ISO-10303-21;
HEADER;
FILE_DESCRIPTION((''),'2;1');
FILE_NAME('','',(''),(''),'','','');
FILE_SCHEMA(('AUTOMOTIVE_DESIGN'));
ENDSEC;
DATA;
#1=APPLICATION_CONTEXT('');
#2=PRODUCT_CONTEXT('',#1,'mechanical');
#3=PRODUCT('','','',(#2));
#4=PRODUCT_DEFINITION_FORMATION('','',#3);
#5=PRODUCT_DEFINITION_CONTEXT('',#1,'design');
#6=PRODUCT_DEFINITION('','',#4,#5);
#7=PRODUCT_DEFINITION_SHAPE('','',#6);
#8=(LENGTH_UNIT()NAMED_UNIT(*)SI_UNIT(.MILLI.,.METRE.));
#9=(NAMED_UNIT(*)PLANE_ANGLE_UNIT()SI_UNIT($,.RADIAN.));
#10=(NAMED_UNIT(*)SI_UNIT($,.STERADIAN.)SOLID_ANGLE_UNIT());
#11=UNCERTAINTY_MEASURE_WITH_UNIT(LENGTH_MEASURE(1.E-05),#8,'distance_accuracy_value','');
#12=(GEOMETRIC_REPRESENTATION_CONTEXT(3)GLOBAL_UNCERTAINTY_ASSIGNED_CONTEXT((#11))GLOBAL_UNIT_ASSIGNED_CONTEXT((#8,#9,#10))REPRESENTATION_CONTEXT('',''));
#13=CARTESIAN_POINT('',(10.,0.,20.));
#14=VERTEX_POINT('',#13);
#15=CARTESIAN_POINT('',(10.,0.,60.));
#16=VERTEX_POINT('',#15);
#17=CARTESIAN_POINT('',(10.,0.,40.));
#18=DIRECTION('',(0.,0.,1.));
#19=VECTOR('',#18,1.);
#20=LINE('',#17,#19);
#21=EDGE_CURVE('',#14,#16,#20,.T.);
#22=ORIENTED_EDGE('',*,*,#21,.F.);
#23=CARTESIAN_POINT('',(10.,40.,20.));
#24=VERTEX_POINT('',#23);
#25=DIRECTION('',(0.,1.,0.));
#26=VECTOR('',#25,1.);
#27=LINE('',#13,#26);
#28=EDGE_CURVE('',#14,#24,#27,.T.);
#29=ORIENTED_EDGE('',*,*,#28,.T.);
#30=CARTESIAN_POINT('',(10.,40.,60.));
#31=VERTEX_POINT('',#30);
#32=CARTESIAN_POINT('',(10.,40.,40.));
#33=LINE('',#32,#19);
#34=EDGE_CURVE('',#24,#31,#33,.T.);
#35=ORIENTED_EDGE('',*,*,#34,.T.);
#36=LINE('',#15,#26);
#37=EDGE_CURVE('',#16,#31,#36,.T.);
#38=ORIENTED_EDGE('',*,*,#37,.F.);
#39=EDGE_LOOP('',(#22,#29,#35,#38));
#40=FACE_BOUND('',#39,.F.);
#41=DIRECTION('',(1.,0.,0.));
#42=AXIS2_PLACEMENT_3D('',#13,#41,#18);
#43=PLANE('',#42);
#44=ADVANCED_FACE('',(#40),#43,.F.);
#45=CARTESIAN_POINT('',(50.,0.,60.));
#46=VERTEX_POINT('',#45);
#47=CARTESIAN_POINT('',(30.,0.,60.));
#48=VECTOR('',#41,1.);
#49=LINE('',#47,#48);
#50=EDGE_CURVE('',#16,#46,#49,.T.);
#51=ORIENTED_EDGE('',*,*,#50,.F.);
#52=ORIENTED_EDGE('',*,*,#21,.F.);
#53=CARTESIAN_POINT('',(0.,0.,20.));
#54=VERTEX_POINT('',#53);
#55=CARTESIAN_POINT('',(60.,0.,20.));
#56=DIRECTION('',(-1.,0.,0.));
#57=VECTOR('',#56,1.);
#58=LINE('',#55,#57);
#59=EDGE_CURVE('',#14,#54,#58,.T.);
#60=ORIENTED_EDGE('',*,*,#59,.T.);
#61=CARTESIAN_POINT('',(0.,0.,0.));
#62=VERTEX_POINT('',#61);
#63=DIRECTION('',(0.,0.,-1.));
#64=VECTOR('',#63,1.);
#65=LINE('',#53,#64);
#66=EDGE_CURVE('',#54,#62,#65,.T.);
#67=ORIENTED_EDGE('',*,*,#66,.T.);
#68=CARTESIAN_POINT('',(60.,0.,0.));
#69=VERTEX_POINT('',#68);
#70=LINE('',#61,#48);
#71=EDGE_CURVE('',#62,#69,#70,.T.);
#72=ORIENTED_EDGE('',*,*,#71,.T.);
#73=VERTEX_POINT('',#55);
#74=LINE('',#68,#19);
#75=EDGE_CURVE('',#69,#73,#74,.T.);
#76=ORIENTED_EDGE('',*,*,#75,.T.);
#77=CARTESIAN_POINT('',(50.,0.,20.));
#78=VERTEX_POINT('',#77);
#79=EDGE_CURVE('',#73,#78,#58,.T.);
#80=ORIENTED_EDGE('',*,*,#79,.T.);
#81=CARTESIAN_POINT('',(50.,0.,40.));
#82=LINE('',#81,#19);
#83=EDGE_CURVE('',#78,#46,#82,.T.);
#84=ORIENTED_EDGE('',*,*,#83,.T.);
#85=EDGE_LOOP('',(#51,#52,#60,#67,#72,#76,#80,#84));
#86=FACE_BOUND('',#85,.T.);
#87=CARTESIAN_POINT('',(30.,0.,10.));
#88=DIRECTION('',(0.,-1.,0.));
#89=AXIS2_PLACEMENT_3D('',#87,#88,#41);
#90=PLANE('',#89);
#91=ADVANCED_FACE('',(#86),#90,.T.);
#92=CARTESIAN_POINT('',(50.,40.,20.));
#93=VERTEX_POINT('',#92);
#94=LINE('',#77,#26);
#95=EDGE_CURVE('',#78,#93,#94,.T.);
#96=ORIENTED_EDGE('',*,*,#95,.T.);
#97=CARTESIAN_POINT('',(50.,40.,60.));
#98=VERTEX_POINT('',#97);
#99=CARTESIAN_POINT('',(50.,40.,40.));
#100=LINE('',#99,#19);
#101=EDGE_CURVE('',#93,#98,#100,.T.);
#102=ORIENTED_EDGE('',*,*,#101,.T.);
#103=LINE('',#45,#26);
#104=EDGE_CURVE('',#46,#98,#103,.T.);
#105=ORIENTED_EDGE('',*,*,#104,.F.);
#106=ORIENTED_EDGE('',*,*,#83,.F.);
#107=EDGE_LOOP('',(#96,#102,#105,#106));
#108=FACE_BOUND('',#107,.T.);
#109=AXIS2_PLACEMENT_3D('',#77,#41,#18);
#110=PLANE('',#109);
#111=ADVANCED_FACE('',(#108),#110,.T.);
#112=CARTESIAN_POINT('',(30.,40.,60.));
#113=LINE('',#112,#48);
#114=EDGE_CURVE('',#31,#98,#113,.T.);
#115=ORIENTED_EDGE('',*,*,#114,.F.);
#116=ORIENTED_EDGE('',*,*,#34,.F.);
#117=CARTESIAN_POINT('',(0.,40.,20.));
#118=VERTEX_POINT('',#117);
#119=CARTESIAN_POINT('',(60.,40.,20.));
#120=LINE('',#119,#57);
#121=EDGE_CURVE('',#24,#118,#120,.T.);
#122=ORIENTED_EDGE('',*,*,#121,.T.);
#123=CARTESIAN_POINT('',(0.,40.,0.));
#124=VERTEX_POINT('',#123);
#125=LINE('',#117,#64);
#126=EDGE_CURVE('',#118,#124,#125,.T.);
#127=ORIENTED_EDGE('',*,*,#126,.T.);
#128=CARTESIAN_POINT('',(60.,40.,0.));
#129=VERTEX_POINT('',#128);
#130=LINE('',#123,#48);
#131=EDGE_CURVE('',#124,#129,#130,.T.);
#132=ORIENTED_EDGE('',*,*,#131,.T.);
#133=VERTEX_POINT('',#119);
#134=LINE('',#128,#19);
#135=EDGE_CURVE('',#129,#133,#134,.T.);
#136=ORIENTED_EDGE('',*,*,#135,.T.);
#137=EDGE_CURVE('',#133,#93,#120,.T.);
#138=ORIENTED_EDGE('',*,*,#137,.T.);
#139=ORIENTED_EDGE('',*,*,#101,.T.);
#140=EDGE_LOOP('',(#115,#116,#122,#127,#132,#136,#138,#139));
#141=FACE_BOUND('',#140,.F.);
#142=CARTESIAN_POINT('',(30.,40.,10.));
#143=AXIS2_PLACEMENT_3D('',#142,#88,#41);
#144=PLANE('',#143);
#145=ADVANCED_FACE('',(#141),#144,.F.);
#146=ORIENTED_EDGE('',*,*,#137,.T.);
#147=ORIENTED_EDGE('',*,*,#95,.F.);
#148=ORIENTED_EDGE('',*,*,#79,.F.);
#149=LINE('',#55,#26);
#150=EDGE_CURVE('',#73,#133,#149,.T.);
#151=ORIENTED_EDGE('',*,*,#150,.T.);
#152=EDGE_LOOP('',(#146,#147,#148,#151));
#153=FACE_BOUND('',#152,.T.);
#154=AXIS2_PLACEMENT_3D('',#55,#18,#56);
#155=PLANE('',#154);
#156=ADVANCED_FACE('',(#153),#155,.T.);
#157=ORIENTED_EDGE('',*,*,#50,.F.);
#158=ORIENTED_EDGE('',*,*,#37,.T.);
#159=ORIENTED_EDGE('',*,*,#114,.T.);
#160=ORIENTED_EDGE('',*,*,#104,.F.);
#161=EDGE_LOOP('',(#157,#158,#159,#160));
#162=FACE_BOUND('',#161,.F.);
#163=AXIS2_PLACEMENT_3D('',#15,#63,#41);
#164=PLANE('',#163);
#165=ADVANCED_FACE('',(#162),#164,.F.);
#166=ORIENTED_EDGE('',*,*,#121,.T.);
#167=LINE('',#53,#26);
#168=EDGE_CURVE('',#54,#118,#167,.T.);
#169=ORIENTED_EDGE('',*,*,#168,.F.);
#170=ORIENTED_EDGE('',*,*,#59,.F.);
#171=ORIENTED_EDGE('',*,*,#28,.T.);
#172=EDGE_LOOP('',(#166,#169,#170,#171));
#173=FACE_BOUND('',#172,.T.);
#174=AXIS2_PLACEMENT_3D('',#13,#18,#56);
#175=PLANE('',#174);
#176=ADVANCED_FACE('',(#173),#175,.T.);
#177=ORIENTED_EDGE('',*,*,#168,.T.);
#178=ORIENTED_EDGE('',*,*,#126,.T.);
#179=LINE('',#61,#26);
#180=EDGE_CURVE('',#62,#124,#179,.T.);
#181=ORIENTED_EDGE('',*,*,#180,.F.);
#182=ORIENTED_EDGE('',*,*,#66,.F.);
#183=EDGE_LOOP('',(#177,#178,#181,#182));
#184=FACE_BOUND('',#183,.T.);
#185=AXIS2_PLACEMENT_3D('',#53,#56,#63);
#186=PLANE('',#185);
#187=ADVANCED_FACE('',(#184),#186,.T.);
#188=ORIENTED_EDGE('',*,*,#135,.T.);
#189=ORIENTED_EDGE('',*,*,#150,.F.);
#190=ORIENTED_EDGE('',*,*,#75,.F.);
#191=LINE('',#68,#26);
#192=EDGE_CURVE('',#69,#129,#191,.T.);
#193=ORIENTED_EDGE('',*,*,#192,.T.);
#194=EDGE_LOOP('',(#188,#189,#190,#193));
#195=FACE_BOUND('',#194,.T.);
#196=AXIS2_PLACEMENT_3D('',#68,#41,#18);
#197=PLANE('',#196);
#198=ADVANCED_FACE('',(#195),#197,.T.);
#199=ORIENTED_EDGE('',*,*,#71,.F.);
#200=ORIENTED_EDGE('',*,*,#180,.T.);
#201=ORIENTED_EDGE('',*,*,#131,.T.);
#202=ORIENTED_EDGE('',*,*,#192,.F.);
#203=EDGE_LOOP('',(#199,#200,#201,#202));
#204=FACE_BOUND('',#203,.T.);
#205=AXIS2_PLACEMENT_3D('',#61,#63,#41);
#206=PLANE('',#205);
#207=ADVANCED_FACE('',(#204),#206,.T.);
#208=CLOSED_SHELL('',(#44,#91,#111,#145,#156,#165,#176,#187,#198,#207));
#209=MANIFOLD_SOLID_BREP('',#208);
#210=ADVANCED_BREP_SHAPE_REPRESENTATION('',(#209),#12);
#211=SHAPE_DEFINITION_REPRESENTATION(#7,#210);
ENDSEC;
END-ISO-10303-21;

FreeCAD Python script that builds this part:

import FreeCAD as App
import Part
import Sketcher
from FreeCAD import Vector

doc = App.newDocument("Part")
params = doc.addObject("Spreadsheet::Sheet", "Params")
for row, (alias, value) in enumerate([
    ("sketch1_width", "60 mm"),
    ("sketch1_width2", "10 mm"),
    ("sketch1_height", "20 mm"),
    ("pad1_length", "40 mm"),
], start=1):
    params.set(f"A{row}", alias)
    params.set(f"B{row}", "=" + value)
    params.setAlias(f"B{row}", alias)

body = doc.addObject("PartDesign::Body", "Body")

# Sketch on XZ plane
sketch1 = doc.addObject("Sketcher::SketchObject", "Sketch")
body.addObject(sketch1)
sketch1.AttachmentSupport = (doc.XZ_Plane, [""])
sketch1.MapMode = "FlatFace"
sketch1.addGeometry([
    Part.LineSegment(Vector(0, 20, 0), Vector(0, 0, 0)),  # 0
    Part.LineSegment(Vector(0, 0, 0), Vector(60, 0, 0)),  # 1
    Part.LineSegment(Vector(60, 0, 0), Vector(60, 20, 0)),  # 2
    Part.LineSegment(Vector(60, 20, 0), Vector(50, 20, 0)),  # 3
    Part.LineSegment(Vector(50, 20, 0), Vector(50, 60, 0)),  # 4
    Part.LineSegment(Vector(50, 60, 0), Vector(10, 60, 0)),  # 5
    Part.LineSegment(Vector(10, 60, 0), Vector(10, 20, 0)),  # 6
    Part.LineSegment(Vector(10, 20, 0), Vector(0, 20, 0)),  # 7
], False)
sketch1.addConstraint([
    Sketcher.Constraint("Coincident", 0, 2, 1, 1),
    Sketcher.Constraint("Coincident", 1, 2, 2, 1),
    Sketcher.Constraint("Coincident", 2, 2, 3, 1),
    Sketcher.Constraint("Coincident", 3, 2, 4, 1),
    Sketcher.Constraint("Coincident", 4, 2, 5, 1),
    Sketcher.Constraint("Coincident", 5, 2, 6, 1),
    Sketcher.Constraint("Coincident", 6, 2, 7, 1),
    Sketcher.Constraint("Coincident", 7, 2, 0, 1),
    Sketcher.Constraint("Vertical", 0),
    Sketcher.Constraint("Horizontal", 1),
    Sketcher.Constraint("Vertical", 2),
    Sketcher.Constraint("Horizontal", 3),
    Sketcher.Constraint("Vertical", 4),
    Sketcher.Constraint("Horizontal", 5),
    Sketcher.Constraint("Vertical", 6),
    Sketcher.Constraint("Horizontal", 7),
    Sketcher.Constraint("Coincident", 0, 2, -1, 1),
    Sketcher.Constraint("Horizontal", 3, 2, 6, 2),
    Sketcher.Constraint("Equal", 3, 7),
    Sketcher.Constraint("Equal", 5, 4),
    Sketcher.Constraint("DistanceX", 1, 1, 1, 2, 60.0),
    Sketcher.Constraint("DistanceX", 3, 2, 3, 1, 10.0),
    Sketcher.Constraint("DistanceY", 0, 2, 0, 1, 20.0),
])
sketch1.setExpression("Constraints[20]", "Params.sketch1_width")
sketch1.setExpression("Constraints[21]", "Params.sketch1_width2")
sketch1.setExpression("Constraints[22]", "Params.sketch1_height")
pad1 = doc.addObject("PartDesign::Pad", "Pad")
body.addObject(pad1)
pad1.Profile = sketch1
pad1.setExpression("Length", "Params.pad1_length")
pad1.Reversed = True

doc.recompute()
